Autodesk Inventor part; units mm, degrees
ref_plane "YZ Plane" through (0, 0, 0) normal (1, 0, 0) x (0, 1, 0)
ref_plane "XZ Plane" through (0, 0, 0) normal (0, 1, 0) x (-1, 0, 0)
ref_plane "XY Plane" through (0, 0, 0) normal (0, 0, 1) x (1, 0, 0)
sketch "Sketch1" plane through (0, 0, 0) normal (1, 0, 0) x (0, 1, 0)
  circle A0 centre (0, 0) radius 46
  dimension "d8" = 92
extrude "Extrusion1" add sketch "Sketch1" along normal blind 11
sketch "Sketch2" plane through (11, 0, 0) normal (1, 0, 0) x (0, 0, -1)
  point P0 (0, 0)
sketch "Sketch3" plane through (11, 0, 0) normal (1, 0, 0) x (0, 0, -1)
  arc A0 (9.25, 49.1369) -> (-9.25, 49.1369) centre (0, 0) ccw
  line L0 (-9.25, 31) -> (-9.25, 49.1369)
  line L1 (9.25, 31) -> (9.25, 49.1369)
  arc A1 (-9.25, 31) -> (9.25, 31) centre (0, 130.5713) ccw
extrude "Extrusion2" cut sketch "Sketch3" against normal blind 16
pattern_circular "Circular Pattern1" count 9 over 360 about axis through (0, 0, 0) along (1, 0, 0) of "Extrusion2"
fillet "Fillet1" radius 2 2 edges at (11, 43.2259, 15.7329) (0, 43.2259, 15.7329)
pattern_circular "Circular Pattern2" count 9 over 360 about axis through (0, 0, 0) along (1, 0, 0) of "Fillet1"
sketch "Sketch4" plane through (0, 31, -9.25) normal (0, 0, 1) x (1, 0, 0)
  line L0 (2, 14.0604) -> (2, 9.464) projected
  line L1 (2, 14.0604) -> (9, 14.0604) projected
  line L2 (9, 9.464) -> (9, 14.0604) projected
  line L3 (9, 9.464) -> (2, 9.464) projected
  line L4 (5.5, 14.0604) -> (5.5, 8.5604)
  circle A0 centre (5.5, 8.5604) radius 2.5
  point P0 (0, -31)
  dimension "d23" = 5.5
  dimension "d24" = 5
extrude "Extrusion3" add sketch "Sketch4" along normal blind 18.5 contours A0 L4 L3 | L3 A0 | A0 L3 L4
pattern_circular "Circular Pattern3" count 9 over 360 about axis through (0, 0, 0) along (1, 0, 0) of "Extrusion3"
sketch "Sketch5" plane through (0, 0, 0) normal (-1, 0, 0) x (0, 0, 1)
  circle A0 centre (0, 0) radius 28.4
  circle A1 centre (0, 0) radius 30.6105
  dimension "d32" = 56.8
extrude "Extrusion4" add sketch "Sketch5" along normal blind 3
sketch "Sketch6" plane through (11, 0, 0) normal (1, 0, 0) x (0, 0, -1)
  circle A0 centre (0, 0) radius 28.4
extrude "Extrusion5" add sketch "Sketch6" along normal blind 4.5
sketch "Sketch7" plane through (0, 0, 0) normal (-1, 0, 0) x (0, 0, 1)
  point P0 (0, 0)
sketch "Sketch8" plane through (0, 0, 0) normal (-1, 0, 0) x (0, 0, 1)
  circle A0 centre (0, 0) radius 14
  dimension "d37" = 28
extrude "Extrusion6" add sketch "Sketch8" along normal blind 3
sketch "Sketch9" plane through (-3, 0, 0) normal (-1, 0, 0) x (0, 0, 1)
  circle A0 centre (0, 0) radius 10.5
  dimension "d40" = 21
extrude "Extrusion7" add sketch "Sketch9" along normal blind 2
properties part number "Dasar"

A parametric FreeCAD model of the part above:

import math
import FreeCAD as App
import Part
import Sketcher
Q = App.Units.Quantity


def edges_at(feature, points):
    """Names of the edges that pass closest to the given points."""
    edges = feature.Shape.Edges
    near = lambda p: min(range(len(edges)), key=lambda i: edges[i].distToShape(Part.Vertex(*p))[0])
    return sorted({f"Edge{near(p) + 1}" for p in points})

doc = App.newDocument("Part")
body = doc.addObject("PartDesign::Body", "Body")

# Sketch on YZ plane
sketch1 = doc.addObject("Sketcher::SketchObject", "Sketch")
body.addObject(sketch1)
sketch1.AttachmentSupport = (doc.YZ_Plane, [""])
sketch1.MapMode = "FlatFace"
sketch1.addGeometry(Part.Circle(App.Vector(0, 0, 0), App.Vector(0, 0, 1), 46), False)
sketch1.addConstraint([
    Sketcher.Constraint("Coincident", 0, 3, -1, 1),
    Sketcher.Constraint("Diameter", 0, Q("92 mm")),
])
pad1 = doc.addObject("PartDesign::Pad", "Pad")
body.addObject(pad1)
pad1.Profile = sketch1
pad1.Length = 11

# Sketch on YZ plane
sketch2 = doc.addObject("Sketcher::SketchObject", "Sketch001")
body.addObject(sketch2)
sketch2.AttachmentSupport = (doc.YZ_Plane, [""])
sketch2.MapMode = "FlatFace"
sketch2.AttachmentOffset = App.Placement(App.Vector(0, 0, 11), App.Rotation())
sketch2.addGeometry([
    Part.LineSegment(App.Vector(31, -9, 0), App.Vector(49, -9, 0)),
    Part.ArcOfCircle(Part.Circle(App.Vector(0, 0, 0), App.Vector(0, 0, 1), 50), math.radians(-11), math.radians(11)),
    Part.LineSegment(App.Vector(49, 9, 0), App.Vector(31, 9, 0)),
    Part.ArcOfCircle(Part.Circle(App.Vector(131, 0, 0), App.Vector(0, 0, 1), 100), math.radians(174.69), math.radians(185.31)),
], False)
sketch2.addConstraint([
    Sketcher.Constraint("Coincident", 0, 2, 1, 1),
    Sketcher.Constraint("Coincident", 1, 2, 2, 1),
    Sketcher.Constraint("Coincident", 2, 2, 3, 1),
    Sketcher.Constraint("Coincident", 3, 2, 0, 1),
    Sketcher.Constraint("Horizontal", 0),
    Sketcher.Constraint("Horizontal", 2),
    Sketcher.Constraint("Coincident", 1, 3, -1, 1),
    Sketcher.Constraint("Symmetric", 2, 2, 3, 2, -1),
    Sketcher.Constraint("Radius", 1, Q("50 mm")),
    Sketcher.Constraint("Radius", 3, Q("100 mm")),
    Sketcher.Constraint("DistanceX", -1, 1, 2, 2, Q("31 mm")),
    Sketcher.Constraint("DistanceY", 0, 2, 1, 2, Q("18.5 mm")),
])
pocket1 = doc.addObject("PartDesign::Pocket", "Pocket")
body.addObject(pocket1)
pocket1.Profile = sketch2
pocket1.Length = 16
doc.recompute()

polarpattern = doc.addObject("PartDesign::PolarPattern", "PolarPattern")
body.addObject(polarpattern)
polarpattern.Originals = [pocket1]
polarpattern.Axis = (doc.X_Axis, [""])
polarpattern.Angle = 360
polarpattern.Occurrences = 9
body.Tip = polarpattern
doc.recompute()

fillet = doc.addObject("PartDesign::Fillet", "Fillet")
body.addObject(fillet)
fillet.Base = (polarpattern, edges_at(polarpattern, [(11, 43.226, 15.733), (0, 43.226, 15.733)]))
fillet.Radius = 2
doc.recompute()

polarpattern2 = doc.addObject("PartDesign::PolarPattern", "PolarPattern001")
body.addObject(polarpattern2)
polarpattern2.Originals = [fillet]
polarpattern2.Axis = (doc.X_Axis, [""])
polarpattern2.Angle = 360
polarpattern2.Occurrences = 9
body.Tip = polarpattern2

# Sketch on XY plane
sketch3 = doc.addObject("Sketcher::SketchObject", "Sketch002")
body.addObject(sketch3)
sketch3.AttachmentSupport = (doc.XY_Plane, [""])
sketch3.MapMode = "FlatFace"
sketch3.AttachmentOffset = App.Placement(App.Vector(0, 0, -9.25), App.Rotation())
sketch3.addGeometry(Part.Circle(App.Vector(5.5, 39.6, 0), App.Vector(0, 0, 1), 2.5), False)
sketch3.addConstraint([
    Sketcher.Constraint("Diameter", 0, Q("5 mm")),
    Sketcher.Constraint("DistanceX", -1, 1, 0, 3, Q("5.5 mm")),
    Sketcher.Constraint("DistanceY", -1, 1, 0, 3, Q("39.5604 mm")),
])
pad2 = doc.addObject("PartDesign::Pad", "Pad001")
body.addObject(pad2)
pad2.Profile = sketch3
pad2.Length = 18.5
doc.recompute()

polarpattern3 = doc.addObject("PartDesign::PolarPattern", "PolarPattern002")
body.addObject(polarpattern3)
polarpattern3.Originals = [pad2]
polarpattern3.Axis = (doc.X_Axis, [""])
polarpattern3.Angle = 360
polarpattern3.Occurrences = 9
body.Tip = polarpattern3

# Sketch on YZ plane
sketch4 = doc.addObject("Sketcher::SketchObject", "Sketch003")
body.addObject(sketch4)
sketch4.AttachmentSupport = (doc.YZ_Plane, [""])
sketch4.MapMode = "FlatFace"
sketch4.addGeometry([
    Part.Circle(App.Vector(0, 0, 0), App.Vector(0, 0, 1), 31),
    Part.Circle(App.Vector(0, 0, 0), App.Vector(0, 0, 1), 28),
], False)
sketch4.addConstraint([
    Sketcher.Constraint("Coincident", 0, 3, -1, 1),
    Sketcher.Constraint("Coincident", 1, 3, -1, 1),
    Sketcher.Constraint("Diameter", 1, Q("56.8 mm")),
    Sketcher.Constraint("Diameter", 0, Q("61.221 mm")),
])
pad3 = doc.addObject("PartDesign::Pad", "Pad002")
body.addObject(pad3)
pad3.Profile = sketch4
pad3.Length = 3
pad3.Reversed = True

# Sketch on YZ plane
sketch5 = doc.addObject("Sketcher::SketchObject", "Sketch004")
body.addObject(sketch5)
sketch5.AttachmentSupport = (doc.YZ_Plane, [""])
sketch5.MapMode = "FlatFace"
sketch5.AttachmentOffset = App.Placement(App.Vector(0, 0, 11), App.Rotation())
sketch5.addGeometry(Part.Circle(App.Vector(0, 0, 0), App.Vector(0, 0, 1), 28), False)
sketch5.addConstraint([
    Sketcher.Constraint("Coincident", 0, 3, -1, 1),
    Sketcher.Constraint("Diameter", 0, Q("56.8 mm")),
])
pad4 = doc.addObject("PartDesign::Pad", "Pad003")
body.addObject(pad4)
pad4.Profile = sketch5
pad4.Length = 4.5

# Sketch on YZ plane
sketch6 = doc.addObject("Sketcher::SketchObject", "Sketch005")
body.addObject(sketch6)
sketch6.AttachmentSupport = (doc.YZ_Plane, [""])
sketch6.MapMode = "FlatFace"
sketch6.addGeometry(Part.Circle(App.Vector(0, 0, 0), App.Vector(0, 0, 1), 14), False)
sketch6.addConstraint([
    Sketcher.Constraint("Coincident", 0, 3, -1, 1),
    Sketcher.Constraint("Diameter", 0, Q("28 mm")),
])
pad5 = doc.addObject("PartDesign::Pad", "Pad004")
body.addObject(pad5)
pad5.Profile = sketch6
pad5.Length = 3
pad5.Reversed = True

# Sketch on YZ plane
sketch7 = doc.addObject("Sketcher::SketchObject", "Sketch006")
body.addObject(sketch7)
sketch7.AttachmentSupport = (doc.YZ_Plane, [""])
sketch7.MapMode = "FlatFace"
sketch7.AttachmentOffset = App.Placement(App.Vector(0, 0, -3), App.Rotation())
sketch7.addGeometry(Part.Circle(App.Vector(0, 0, 0), App.Vector(0, 0, 1), 10), False)
sketch7.addConstraint([
    Sketcher.Constraint("Coincident", 0, 3, -1, 1),
    Sketcher.Constraint("Diameter", 0, Q("21 mm")),
])
pad6 = doc.addObject("PartDesign::Pad", "Pad005")
body.addObject(pad6)
pad6.Profile = sketch7
pad6.Length = 2
pad6.Reversed = True

doc.recompute()
